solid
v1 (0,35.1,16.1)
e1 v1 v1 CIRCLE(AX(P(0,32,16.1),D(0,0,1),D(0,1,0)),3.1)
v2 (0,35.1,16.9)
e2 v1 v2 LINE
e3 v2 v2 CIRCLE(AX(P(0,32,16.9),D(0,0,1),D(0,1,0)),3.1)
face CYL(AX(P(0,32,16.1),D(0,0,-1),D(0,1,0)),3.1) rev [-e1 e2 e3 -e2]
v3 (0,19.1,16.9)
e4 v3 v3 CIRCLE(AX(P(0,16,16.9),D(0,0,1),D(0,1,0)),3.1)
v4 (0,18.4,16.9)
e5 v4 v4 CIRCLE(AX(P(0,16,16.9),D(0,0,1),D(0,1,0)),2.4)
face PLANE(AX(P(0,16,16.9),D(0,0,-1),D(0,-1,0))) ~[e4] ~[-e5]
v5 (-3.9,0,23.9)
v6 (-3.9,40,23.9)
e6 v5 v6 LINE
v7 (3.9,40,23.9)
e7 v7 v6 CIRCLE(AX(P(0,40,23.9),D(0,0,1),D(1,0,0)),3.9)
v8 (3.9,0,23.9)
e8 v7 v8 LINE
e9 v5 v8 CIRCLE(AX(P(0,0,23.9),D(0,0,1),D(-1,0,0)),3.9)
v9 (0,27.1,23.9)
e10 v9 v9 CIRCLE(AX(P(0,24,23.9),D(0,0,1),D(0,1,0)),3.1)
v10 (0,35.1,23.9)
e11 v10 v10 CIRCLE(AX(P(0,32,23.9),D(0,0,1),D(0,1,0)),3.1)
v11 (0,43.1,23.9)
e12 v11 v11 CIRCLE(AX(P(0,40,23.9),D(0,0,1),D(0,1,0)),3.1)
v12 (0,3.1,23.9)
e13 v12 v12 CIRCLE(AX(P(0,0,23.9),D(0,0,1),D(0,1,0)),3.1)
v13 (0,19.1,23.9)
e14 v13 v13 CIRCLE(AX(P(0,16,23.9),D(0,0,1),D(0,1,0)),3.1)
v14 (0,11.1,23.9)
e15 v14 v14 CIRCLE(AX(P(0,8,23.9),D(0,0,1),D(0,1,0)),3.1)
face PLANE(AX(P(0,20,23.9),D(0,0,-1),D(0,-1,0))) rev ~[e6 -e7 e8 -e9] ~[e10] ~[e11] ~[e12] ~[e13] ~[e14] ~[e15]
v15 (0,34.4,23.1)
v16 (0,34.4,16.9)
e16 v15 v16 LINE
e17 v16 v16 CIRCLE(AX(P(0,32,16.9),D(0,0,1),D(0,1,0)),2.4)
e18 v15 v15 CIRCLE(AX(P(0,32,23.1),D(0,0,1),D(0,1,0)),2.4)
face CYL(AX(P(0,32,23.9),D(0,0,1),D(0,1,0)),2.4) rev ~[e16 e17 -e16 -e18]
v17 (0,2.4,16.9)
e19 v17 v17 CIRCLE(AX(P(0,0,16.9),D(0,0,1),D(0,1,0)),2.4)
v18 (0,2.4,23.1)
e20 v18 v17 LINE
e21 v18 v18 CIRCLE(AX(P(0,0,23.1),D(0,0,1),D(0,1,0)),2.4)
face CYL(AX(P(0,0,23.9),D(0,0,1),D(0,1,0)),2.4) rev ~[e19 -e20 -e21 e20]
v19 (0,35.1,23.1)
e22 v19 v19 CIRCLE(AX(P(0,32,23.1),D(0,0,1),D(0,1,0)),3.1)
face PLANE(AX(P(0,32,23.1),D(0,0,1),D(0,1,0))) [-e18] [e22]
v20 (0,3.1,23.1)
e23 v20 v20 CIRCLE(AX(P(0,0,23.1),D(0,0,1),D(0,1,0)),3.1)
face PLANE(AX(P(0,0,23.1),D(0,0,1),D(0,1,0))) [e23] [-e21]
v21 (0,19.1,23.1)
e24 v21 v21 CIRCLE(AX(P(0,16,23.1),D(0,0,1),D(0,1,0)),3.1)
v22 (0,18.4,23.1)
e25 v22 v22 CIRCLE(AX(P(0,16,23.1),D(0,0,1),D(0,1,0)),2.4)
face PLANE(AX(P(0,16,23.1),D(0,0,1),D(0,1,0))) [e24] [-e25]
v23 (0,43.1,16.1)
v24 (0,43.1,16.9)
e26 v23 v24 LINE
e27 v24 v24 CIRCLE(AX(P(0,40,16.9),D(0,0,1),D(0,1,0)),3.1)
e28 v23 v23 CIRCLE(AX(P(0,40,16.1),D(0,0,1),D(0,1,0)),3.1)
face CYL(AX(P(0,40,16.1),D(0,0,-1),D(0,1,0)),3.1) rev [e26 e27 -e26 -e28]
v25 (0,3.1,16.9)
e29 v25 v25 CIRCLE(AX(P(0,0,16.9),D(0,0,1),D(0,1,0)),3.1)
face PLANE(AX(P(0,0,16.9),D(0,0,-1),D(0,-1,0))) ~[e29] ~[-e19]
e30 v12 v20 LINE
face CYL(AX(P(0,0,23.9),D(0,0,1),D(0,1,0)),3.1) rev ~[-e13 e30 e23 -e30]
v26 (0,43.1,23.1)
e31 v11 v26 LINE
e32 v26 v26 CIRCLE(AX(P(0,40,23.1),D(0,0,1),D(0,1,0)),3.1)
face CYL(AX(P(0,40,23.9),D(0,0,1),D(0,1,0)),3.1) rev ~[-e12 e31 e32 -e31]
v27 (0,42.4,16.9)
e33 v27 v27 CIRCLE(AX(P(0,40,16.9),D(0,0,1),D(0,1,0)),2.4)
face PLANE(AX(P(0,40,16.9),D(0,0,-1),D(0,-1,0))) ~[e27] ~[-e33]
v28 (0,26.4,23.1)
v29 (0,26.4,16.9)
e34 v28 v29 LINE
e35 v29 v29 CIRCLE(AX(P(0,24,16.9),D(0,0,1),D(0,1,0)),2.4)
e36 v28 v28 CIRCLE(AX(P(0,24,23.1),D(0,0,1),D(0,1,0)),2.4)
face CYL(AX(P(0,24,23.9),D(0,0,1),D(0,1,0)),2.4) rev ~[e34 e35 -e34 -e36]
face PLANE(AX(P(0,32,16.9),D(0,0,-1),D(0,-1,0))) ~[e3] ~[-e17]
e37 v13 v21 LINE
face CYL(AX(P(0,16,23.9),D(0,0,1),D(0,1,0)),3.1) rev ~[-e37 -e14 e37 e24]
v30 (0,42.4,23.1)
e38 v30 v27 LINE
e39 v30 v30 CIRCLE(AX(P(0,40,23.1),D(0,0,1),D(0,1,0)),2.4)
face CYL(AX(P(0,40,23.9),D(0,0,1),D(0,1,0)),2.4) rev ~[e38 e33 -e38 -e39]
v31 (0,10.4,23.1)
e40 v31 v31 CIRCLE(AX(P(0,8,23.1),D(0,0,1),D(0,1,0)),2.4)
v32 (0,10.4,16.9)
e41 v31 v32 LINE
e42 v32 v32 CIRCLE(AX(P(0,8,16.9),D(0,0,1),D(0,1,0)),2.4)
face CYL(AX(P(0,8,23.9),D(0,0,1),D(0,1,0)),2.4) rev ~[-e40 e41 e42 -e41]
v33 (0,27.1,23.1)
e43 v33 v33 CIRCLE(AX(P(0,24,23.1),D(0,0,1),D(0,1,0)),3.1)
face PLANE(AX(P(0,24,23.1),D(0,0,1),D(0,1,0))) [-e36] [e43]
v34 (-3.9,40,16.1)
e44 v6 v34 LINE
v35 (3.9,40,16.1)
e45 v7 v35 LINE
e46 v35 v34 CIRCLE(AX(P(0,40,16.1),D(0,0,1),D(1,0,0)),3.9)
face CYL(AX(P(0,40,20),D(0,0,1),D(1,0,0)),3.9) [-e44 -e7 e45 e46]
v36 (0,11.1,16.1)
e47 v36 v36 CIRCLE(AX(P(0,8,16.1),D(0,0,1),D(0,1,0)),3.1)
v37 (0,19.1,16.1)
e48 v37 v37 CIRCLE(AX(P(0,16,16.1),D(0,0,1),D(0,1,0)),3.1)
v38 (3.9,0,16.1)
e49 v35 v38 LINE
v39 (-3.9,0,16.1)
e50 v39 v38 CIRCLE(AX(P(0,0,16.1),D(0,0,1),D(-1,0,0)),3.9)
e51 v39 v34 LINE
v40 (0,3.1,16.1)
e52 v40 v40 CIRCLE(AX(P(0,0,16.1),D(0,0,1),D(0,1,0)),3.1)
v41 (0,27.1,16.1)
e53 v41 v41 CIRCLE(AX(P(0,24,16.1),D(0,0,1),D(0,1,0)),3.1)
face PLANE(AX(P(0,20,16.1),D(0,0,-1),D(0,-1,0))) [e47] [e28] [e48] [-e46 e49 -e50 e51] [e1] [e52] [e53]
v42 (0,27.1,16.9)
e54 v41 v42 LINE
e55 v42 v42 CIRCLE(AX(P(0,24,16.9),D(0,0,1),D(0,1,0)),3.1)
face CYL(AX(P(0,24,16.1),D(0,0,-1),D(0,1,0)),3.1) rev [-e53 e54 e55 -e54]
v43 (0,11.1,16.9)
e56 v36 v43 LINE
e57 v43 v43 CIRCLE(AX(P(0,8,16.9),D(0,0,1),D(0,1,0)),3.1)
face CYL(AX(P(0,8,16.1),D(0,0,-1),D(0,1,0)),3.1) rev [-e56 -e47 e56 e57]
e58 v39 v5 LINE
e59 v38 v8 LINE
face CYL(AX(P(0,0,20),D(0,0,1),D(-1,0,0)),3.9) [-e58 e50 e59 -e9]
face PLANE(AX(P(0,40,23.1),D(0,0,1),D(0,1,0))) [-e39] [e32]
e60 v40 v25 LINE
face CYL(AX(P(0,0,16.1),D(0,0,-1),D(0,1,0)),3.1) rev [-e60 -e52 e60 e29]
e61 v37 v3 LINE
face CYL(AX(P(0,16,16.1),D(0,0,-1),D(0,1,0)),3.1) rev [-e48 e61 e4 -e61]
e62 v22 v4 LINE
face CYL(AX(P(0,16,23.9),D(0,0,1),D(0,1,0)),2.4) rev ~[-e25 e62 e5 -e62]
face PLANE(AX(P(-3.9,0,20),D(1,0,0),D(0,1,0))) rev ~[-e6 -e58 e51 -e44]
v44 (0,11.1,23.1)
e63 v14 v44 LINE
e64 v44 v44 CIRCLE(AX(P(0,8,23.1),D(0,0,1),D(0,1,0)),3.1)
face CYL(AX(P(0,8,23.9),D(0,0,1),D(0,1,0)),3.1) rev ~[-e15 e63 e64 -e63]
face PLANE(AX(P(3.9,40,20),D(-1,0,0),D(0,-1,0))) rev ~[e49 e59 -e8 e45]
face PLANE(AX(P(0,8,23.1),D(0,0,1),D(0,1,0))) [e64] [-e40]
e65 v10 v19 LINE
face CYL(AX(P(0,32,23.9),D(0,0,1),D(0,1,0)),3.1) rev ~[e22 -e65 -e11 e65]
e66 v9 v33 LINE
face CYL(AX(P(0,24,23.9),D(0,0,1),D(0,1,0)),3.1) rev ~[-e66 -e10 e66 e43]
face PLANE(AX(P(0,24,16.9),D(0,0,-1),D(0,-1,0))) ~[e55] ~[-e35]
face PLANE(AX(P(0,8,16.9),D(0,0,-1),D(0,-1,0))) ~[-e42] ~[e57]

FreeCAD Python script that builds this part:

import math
import FreeCAD as App
import Part
import Sketcher
Q = App.Units.Quantity

doc = App.newDocument("Part")
body = doc.addObject("PartDesign::Body", "Body")

# Sketch on XY plane
sketch1 = body.newObject("Sketcher::SketchObject", "Sketch")
sketch1.AttachmentSupport = (doc.getObject("XY_Plane"), [""])
sketch1.MapMode = "FlatFace"
sketch1.addGeometry(Part.LineSegment(App.Vector(20, 3.9, 0), App.Vector(-20, 3.9, 0)), False)
sketch1.addGeometry(Part.ArcOfCircle(Part.Circle(App.Vector(-20, 0, 0), App.Vector(0, 0, 1), 3.9), math.radians(90), math.radians(270)), False)
sketch1.addGeometry(Part.LineSegment(App.Vector(-20, -3.9, 0), App.Vector(20, -3.9, 0)), False)
sketch1.addGeometry(Part.ArcOfCircle(Part.Circle(App.Vector(20, 0, 0), App.Vector(0, 0, 1), 3.9), math.radians(-90), math.radians(90)), False)
sketch1.addConstraint(Sketcher.Constraint("Tangent", 0, 2, 1, 1))
sketch1.addConstraint(Sketcher.Constraint("Tangent", 1, 2, 2, 1))
sketch1.addConstraint(Sketcher.Constraint("Tangent", 2, 2, 3, 1))
sketch1.addConstraint(Sketcher.Constraint("Tangent", 3, 2, 0, 1))
sketch1.addConstraint(Sketcher.Constraint("Horizontal", 0))
sketch1.addConstraint(Sketcher.Constraint("Horizontal", 2))
sketch1.addConstraint(Sketcher.Constraint("Symmetric", 1, 3, 3, 3, -1, 1))
sketch1.addConstraint(Sketcher.Constraint("Radius", 1, Q("3.9 mm")))
sketch1.addConstraint(Sketcher.Constraint("DistanceX", 0, 2, 0, 1, Q("40 mm")))
pad1 = body.newObject("PartDesign::Pad", "Pad")
pad1.Profile = sketch1
pad1.Length = 7.8
pad1.Midplane = True

# Sketch on XY plane
sketch2 = body.newObject("Sketcher::SketchObject", "Sketch001")
sketch2.AttachmentSupport = (doc.getObject("XY_Plane"), [""])
sketch2.MapMode = "FlatFace"
sketch2.AttachmentOffset = App.Placement(App.Vector(0, 0, 3.9), App.Rotation())
sketch2.addGeometry(Part.Circle(App.Vector(20, 0, 0), App.Vector(0, 0, 1), 2.4), False)
sketch2.addConstraint(Sketcher.Constraint("PointOnObject", 0, 3, -1))
sketch2.addConstraint(Sketcher.Constraint("Diameter", 0, Q("4.8 mm")))
sketch2.addConstraint(Sketcher.Constraint("DistanceX", -1, 1, 0, 3, Q("20 mm")))
pocket1 = body.newObject("PartDesign::Pocket", "Pocket")
pocket1.Profile = sketch2
pocket1.Length = 7.8
doc.recompute()

linearpattern = body.newObject("PartDesign::LinearPattern", "LinearPattern")
linearpattern.Originals = [pocket1]
linearpattern.Direction = (doc.getObject("X_Axis"), [""])
linearpattern.Mode = "offset"
linearpattern.Offset = 8
linearpattern.Occurrences = 6
linearpattern.Reversed = True
body.Tip = linearpattern

# Sketch on XY plane
sketch3 = body.newObject("Sketcher::SketchObject", "Sketch002")
sketch3.AttachmentSupport = (doc.getObject("XY_Plane"), [""])
sketch3.MapMode = "FlatFace"
sketch3.AttachmentOffset = App.Placement(App.Vector(0, 0, 3.9), App.Rotation())
sketch3.addGeometry(Part.Circle(App.Vector(20, 0, 0), App.Vector(0, 0, 1), 3.1), False)
sketch3.addConstraint(Sketcher.Constraint("PointOnObject", 0, 3, -1))
sketch3.addConstraint(Sketcher.Constraint("Diameter", 0, Q("6.2 mm")))
sketch3.addConstraint(Sketcher.Constraint("DistanceX", -1, 1, 0, 3, Q("20 mm")))
pocket2 = body.newObject("PartDesign::Pocket", "Pocket001")
pocket2.Profile = sketch3
pocket2.Length = 0.8

# Sketch on XY plane
sketch4 = body.newObject("Sketcher::SketchObject", "Sketch003")
sketch4.AttachmentSupport = (doc.getObject("XY_Plane"), [""])
sketch4.MapMode = "FlatFace"
sketch4.AttachmentOffset = App.Placement(App.Vector(0, 0, 3.9), App.Rotation())
sketch4.addGeometry(Part.Circle(App.Vector(12, 0, 0), App.Vector(0, 0, 1), 3.1), False)
sketch4.addConstraint(Sketcher.Constraint("PointOnObject", 0, 3, -1))
sketch4.addConstraint(Sketcher.Constraint("Diameter", 0, Q("6.2 mm")))
sketch4.addConstraint(Sketcher.Constraint("DistanceX", -1, 1, 0, 3, Q("12 mm")))
pocket3 = body.newObject("PartDesign::Pocket", "Pocket002")
pocket3.Profile = sketch4
pocket3.Length = 0.8

# Sketch on XY plane
sketch5 = body.newObject("Sketcher::SketchObject", "Sketch004")
sketch5.AttachmentSupport = (doc.getObject("XY_Plane"), [""])
sketch5.MapMode = "FlatFace"
sketch5.AttachmentOffset = App.Placement(App.Vector(0, 0, 3.9), App.Rotation())
sketch5.addGeometry(Part.Circle(App.Vector(4, 0, 0), App.Vector(0, 0, 1), 3.1), False)
sketch5.addConstraint(Sketcher.Constraint("PointOnObject", 0, 3, -1))
sketch5.addConstraint(Sketcher.Constraint("Diameter", 0, Q("6.2 mm")))
sketch5.addConstraint(Sketcher.Constraint("DistanceX", -1, 1, 0, 3, Q("4 mm")))
pocket4 = body.newObject("PartDesign::Pocket", "Pocket003")
pocket4.Profile = sketch5
pocket4.Length = 0.8

# Sketch on XY plane
sketch6 = body.newObject("Sketcher::SketchObject", "Sketch005")
sketch6.AttachmentSupport = (doc.getObject("XY_Plane"), [""])
sketch6.MapMode = "FlatFace"
sketch6.AttachmentOffset = App.Placement(App.Vector(0, 0, 3.9), App.Rotation())
sketch6.addGeometry(Part.Circle(App.Vector(-4, 0, 0), App.Vector(0, 0, 1), 3.1), False)
sketch6.addConstraint(Sketcher.Constraint("PointOnObject", 0, 3, -1))
sketch6.addConstraint(Sketcher.Constraint("Diameter", 0, Q("6.2 mm")))
sketch6.addConstraint(Sketcher.Constraint("DistanceX", 0, 3, -1, 1, Q("4 mm")))
pocket5 = body.newObject("PartDesign::Pocket", "Pocket004")
pocket5.Profile = sketch6
pocket5.Length = 0.8

# Sketch on XY plane
sketch7 = body.newObject("Sketcher::SketchObject", "Sketch006")
sketch7.AttachmentSupport = (doc.getObject("XY_Plane"), [""])
sketch7.MapMode = "FlatFace"
sketch7.AttachmentOffset = App.Placement(App.Vector(0, 0, 3.9), App.Rotation())
sketch7.addGeometry(Part.Circle(App.Vector(-12, 0, 0), App.Vector(0, 0, 1), 3.1), False)
sketch7.addConstraint(Sketcher.Constraint("PointOnObject", 0, 3, -1))
sketch7.addConstraint(Sketcher.Constraint("Diameter", 0, Q("6.2 mm")))
sketch7.addConstraint(Sketcher.Constraint("DistanceX", 0, 3, -1, 1, Q("12 mm")))
pocket6 = body.newObject("PartDesign::Pocket", "Pocket005")
pocket6.Profile = sketch7
pocket6.Length = 0.8

# Sketch on XY plane
sketch8 = body.newObject("Sketcher::SketchObject", "Sketch007")
sketch8.AttachmentSupport = (doc.getObject("XY_Plane"), [""])
sketch8.MapMode = "FlatFace"
sketch8.AttachmentOffset = App.Placement(App.Vector(0, 0, 3.9), App.Rotation())
sketch8.addGeometry(Part.Circle(App.Vector(-20, 0, 0), App.Vector(0, 0, 1), 3.1), False)
sketch8.addConstraint(Sketcher.Constraint("PointOnObject", 0, 3, -1))
sketch8.addConstraint(Sketcher.Constraint("Diameter", 0, Q("6.2 mm")))
sketch8.addConstraint(Sketcher.Constraint("DistanceX", 0, 3, -1, 1, Q("20 mm")))
pocket7 = body.newObject("PartDesign::Pocket", "Pocket006")
pocket7.Profile = sketch8
pocket7.Length = 0.8
doc.recompute()

mirrored = body.newObject("PartDesign::Mirrored", "Mirrored")
mirrored.Originals = [pocket2, pocket3, pocket4, pocket5, pocket6, pocket7]
mirrored.MirrorPlane = (doc.getObject("XY_Plane"), [""])
body.Tip = mirrored
body2 = doc.addObject("PartDesign::Body", "Body001")
doc.recompute()

body.Placement = App.Placement(App.Vector(0, 20, 20), App.Rotation(App.Vector(0, 0, 1), 90))
boolean = body2.newObject("PartDesign::Boolean", "Boolean")
boolean.Type = "Fuse"
boolean.addObjects([body])

doc.recompute()
